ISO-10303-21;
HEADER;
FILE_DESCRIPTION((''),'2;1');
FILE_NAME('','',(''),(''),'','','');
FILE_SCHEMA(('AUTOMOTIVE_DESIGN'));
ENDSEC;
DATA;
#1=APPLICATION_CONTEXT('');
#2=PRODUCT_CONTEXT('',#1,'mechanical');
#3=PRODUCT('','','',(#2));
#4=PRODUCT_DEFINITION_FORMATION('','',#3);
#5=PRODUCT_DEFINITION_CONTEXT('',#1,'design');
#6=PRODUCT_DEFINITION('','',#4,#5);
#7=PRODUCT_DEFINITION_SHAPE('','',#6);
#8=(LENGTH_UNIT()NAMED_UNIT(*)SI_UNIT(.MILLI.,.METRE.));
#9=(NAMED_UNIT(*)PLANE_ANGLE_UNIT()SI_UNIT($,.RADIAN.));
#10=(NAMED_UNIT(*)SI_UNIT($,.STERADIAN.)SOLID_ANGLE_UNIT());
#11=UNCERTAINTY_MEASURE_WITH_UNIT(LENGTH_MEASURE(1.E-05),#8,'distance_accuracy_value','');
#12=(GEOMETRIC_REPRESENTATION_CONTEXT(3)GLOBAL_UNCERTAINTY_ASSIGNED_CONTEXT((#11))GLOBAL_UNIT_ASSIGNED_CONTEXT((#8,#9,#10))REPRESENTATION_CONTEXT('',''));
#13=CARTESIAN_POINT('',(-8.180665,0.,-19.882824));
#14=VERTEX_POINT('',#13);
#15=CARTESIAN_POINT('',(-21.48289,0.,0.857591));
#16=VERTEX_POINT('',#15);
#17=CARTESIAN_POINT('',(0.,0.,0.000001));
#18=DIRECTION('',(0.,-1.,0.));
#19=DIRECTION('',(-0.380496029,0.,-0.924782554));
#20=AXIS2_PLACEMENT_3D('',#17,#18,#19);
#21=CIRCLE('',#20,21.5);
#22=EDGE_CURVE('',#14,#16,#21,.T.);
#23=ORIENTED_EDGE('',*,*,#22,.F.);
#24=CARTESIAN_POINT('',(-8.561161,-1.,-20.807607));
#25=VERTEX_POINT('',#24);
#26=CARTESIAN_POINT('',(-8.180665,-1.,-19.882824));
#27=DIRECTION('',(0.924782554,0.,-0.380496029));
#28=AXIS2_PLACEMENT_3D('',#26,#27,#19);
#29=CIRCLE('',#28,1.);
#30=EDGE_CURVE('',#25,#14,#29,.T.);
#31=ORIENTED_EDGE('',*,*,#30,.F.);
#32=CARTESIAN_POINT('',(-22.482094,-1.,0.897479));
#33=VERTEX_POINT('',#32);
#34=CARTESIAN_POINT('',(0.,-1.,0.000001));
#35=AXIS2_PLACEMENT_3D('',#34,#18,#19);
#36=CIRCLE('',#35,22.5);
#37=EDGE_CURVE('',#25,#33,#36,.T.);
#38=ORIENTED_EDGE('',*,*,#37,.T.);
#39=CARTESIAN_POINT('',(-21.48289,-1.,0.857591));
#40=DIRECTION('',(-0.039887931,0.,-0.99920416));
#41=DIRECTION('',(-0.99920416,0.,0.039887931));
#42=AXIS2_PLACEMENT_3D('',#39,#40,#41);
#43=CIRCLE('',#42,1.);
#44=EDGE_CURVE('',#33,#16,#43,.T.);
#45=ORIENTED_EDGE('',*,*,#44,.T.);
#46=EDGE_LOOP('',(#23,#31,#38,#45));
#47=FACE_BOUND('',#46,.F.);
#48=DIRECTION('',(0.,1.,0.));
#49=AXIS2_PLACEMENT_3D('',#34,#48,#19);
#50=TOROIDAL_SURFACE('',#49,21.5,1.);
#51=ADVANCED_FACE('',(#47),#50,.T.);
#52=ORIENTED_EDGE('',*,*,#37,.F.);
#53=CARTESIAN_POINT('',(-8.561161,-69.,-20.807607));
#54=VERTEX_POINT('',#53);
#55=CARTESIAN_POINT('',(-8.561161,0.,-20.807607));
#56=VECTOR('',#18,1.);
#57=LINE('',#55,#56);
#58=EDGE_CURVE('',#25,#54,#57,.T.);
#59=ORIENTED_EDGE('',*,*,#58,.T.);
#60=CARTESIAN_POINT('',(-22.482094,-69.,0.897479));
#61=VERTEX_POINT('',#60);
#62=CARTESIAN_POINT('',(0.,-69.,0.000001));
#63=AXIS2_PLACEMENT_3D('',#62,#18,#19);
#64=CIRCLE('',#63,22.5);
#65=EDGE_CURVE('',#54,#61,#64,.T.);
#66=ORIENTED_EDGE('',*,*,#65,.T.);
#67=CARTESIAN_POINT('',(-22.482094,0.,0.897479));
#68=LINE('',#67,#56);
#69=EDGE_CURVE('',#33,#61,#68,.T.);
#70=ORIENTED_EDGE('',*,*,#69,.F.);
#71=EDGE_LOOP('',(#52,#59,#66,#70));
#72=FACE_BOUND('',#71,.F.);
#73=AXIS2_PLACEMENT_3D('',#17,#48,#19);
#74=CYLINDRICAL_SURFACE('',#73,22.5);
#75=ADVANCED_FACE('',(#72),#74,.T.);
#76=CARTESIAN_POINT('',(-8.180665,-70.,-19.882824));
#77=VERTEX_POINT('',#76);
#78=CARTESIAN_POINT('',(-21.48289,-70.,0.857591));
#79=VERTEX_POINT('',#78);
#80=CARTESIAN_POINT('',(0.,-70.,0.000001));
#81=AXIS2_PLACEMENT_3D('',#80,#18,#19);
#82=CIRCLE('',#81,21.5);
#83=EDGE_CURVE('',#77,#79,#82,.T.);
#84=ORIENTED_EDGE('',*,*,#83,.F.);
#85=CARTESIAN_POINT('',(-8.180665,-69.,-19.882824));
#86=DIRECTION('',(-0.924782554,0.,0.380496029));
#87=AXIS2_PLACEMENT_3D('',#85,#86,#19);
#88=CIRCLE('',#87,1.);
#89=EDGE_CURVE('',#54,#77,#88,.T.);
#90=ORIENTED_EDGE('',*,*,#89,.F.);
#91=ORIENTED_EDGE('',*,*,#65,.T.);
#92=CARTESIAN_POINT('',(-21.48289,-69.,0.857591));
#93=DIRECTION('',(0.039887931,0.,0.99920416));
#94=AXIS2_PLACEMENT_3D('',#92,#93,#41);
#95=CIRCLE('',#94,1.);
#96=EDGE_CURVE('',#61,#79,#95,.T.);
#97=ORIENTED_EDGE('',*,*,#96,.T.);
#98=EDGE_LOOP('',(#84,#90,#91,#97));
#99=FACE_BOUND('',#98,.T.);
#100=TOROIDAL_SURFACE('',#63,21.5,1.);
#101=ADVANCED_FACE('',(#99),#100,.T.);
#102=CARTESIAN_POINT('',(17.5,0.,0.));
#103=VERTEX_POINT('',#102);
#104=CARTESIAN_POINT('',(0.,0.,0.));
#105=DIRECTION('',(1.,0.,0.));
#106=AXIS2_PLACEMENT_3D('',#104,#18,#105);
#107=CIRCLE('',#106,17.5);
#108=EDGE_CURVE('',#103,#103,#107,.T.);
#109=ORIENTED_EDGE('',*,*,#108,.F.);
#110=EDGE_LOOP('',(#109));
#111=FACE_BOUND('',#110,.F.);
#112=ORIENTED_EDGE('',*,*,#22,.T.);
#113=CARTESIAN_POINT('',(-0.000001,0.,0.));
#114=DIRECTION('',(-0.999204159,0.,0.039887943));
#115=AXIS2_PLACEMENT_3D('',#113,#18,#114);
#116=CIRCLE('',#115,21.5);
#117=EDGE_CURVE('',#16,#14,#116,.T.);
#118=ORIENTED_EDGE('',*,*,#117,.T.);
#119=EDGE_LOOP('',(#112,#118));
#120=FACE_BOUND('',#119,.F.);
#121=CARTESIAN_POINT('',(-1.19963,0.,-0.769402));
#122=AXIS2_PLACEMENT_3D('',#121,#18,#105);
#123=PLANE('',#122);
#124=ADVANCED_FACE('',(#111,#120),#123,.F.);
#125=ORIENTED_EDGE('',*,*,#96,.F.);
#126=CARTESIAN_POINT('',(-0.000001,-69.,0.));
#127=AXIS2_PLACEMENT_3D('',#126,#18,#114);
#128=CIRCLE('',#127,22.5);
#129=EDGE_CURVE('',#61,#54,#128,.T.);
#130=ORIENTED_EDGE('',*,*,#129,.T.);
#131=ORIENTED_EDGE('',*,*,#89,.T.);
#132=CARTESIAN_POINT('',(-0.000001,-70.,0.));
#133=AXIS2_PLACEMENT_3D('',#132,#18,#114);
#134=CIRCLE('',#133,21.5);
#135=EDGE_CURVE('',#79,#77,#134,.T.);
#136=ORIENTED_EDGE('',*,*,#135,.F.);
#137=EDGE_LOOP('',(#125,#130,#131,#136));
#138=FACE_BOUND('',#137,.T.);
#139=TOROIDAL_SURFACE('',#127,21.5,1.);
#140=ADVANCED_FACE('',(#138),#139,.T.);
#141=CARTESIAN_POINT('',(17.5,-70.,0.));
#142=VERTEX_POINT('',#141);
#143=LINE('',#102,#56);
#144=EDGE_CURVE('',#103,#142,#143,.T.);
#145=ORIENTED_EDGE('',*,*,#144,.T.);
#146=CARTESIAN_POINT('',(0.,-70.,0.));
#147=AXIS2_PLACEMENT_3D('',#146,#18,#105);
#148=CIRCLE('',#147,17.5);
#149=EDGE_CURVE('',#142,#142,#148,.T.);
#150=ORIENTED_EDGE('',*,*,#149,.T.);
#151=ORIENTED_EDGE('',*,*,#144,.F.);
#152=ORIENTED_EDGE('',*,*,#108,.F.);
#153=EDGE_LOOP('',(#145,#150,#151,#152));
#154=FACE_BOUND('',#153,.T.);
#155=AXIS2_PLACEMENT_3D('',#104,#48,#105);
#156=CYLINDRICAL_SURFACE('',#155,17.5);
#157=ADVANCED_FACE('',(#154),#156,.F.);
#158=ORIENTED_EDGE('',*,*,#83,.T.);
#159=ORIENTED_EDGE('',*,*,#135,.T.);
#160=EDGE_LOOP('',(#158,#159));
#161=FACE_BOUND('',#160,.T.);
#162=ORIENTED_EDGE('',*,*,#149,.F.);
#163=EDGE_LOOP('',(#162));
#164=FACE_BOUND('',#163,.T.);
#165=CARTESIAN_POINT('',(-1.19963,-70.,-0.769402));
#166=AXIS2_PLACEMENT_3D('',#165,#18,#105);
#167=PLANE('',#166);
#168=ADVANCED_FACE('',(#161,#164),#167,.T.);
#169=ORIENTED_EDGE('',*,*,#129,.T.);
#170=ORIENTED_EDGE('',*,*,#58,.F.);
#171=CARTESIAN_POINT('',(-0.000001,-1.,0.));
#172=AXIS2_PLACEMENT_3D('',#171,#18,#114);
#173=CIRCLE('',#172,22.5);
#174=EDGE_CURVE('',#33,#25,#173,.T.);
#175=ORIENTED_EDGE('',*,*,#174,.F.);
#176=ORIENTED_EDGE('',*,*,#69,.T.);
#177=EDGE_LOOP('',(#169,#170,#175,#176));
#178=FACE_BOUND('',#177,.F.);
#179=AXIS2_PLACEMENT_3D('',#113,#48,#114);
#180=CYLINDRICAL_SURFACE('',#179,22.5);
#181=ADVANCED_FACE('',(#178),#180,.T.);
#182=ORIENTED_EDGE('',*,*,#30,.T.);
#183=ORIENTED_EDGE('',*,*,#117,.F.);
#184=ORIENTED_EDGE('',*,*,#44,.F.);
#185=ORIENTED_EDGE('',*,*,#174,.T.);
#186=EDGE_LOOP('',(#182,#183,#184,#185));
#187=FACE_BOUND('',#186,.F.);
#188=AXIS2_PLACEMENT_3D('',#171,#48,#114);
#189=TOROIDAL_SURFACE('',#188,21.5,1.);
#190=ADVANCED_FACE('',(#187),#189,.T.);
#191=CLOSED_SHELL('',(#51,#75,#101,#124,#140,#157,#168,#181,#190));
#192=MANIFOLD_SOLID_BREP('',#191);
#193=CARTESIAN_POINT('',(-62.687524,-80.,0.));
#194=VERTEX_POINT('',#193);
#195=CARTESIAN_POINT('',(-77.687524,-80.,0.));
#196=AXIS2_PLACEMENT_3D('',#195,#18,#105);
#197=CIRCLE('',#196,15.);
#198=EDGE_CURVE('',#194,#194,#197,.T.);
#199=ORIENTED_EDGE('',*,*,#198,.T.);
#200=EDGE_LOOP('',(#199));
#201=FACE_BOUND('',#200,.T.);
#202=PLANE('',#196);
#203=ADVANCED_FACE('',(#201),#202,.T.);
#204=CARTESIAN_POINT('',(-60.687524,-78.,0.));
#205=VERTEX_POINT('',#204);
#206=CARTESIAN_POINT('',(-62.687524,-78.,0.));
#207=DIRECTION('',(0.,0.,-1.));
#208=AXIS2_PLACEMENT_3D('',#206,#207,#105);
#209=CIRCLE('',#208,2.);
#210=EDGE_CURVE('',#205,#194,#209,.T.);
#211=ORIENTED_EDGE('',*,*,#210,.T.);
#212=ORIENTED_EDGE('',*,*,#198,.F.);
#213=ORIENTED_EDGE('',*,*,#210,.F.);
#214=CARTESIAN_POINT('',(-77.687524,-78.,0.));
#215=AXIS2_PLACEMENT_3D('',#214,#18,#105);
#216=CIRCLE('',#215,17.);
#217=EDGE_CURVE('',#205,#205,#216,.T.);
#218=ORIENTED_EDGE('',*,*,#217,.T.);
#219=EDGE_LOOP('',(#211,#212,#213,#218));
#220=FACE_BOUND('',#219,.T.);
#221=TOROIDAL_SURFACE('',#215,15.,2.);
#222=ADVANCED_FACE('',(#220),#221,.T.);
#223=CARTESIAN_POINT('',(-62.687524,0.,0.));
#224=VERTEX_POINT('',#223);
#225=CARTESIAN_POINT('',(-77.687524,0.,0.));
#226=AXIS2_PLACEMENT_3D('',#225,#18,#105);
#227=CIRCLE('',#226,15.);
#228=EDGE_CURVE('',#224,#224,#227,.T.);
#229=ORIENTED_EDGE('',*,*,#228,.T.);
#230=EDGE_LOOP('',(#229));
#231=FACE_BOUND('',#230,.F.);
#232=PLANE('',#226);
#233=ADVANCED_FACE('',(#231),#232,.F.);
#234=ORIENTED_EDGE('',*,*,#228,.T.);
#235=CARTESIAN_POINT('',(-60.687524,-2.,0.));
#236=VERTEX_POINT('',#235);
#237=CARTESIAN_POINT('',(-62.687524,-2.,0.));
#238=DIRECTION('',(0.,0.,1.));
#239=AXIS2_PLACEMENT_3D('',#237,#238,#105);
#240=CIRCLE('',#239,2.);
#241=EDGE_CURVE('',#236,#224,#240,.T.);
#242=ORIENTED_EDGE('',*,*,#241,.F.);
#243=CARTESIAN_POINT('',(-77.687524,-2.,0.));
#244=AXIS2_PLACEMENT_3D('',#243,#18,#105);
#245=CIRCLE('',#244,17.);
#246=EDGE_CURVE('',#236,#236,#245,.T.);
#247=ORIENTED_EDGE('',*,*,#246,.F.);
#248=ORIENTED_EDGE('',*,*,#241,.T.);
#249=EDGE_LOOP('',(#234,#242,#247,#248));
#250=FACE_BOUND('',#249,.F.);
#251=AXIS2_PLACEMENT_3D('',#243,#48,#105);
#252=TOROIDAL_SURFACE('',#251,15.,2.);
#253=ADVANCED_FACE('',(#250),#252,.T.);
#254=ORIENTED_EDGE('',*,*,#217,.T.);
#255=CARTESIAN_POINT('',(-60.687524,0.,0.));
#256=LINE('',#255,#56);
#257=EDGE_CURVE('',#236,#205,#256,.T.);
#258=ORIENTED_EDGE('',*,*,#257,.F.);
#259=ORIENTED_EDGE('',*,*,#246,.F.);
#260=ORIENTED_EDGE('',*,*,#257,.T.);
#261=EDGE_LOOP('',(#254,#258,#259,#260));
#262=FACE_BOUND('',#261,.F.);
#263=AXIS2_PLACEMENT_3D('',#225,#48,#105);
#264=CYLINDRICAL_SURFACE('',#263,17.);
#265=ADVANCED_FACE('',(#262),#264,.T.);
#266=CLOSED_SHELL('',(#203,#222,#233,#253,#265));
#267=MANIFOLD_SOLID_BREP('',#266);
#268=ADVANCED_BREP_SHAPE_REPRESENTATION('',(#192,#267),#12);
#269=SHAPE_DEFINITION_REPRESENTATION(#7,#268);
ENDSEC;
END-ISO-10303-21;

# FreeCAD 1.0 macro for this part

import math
import FreeCAD as App
import Part
import Sketcher
from FreeCAD import Vector
Q = App.Units.Quantity


def edges_at(feature, points):
    """Names of the edges that pass closest to the given points."""
    edges = feature.Shape.Edges
    near = lambda p: min(range(len(edges)), key=lambda i: edges[i].distToShape(Part.Vertex(*p))[0])
    return sorted({f"Edge{near(p) + 1}" for p in points})

doc = App.newDocument("Part")
body = doc.addObject("PartDesign::Body", "Body")

sketch1 = doc.addObject("Sketcher::SketchObject", "Sketch")
body.addObject(sketch1)
sketch1.AttachmentSupport = (doc.XZ_Plane, [""])
sketch1.MapMode = "FlatFace"
sketch1.addGeometry(Part.ArcOfCircle(Part.Circle(Vector(0, 0, 0), Vector(0, 0, 1), 23), math.radians(-112), math.radians(178)), False)
sketch1.addGeometry(Part.ArcOfCircle(Part.Circle(Vector(0, 0, 0), Vector(0, 0, 1), 22), math.radians(178), math.radians(248)), False)
sketch1.addGeometry(Part.Circle(Vector(0, 0, 0), Vector(0, 0, 1), 18), False)
sketch1.addConstraint(Sketcher.Constraint("Tangent", 0, 1, 1, 2))
sketch1.addConstraint(Sketcher.Constraint("Coincident", 1, 1, 0, 2))
sketch1.addConstraint(Sketcher.Constraint("Coincident", 0, 3, -1, 1))
sketch1.addConstraint(Sketcher.Constraint("Coincident", 2, 3, -1, 1))
sketch1.addConstraint(Sketcher.Constraint("Diameter", 2, Q("35 mm")))
sketch1.addConstraint(Sketcher.Constraint("Radius", 0, Q("22.5 mm")))
sketch1.addConstraint(Sketcher.Constraint("DistanceX", 0, 1, -1, 1, Q("8.561161 mm")))
sketch1.addConstraint(Sketcher.Constraint("DistanceY", -1, 1, 1, 1, Q("0.897479 mm")))
pad1 = doc.addObject("PartDesign::Pad", "Pad")
body.addObject(pad1)
pad1.Profile = sketch1
pad1.Length = 70
doc.recompute()

fillet = doc.addObject("PartDesign::Fillet", "Fillet")
body.addObject(fillet)
fillet.Base = (pad1, edges_at(pad1, [(18.939, 0, 12.147), (18.939, -70, 12.147)]))
fillet.Radius = 1
body2 = doc.addObject("PartDesign::Body", "Body001")

sketch2 = doc.addObject("Sketcher::SketchObject", "Sketch001")
body2.addObject(sketch2)
sketch2.AttachmentSupport = (doc.getObject("XZ_Plane001"), [""])
sketch2.MapMode = "FlatFace"
sketch2.addGeometry(Part.Circle(Vector(-78, 0, 0), Vector(0, 0, 1), 17), False)
sketch2.addConstraint(Sketcher.Constraint("PointOnObject", 0, 3, -1))
sketch2.addConstraint(Sketcher.Constraint("Diameter", 0, Q("34 mm")))
sketch2.addConstraint(Sketcher.Constraint("DistanceX", 0, 3, -1, 1, Q("77.687524 mm")))
pad2 = doc.addObject("PartDesign::Pad", "Pad001")
body2.addObject(pad2)
pad2.Profile = sketch2
pad2.Length = 80
doc.recompute()

fillet2 = doc.addObject("PartDesign::Fillet", "Fillet001")
body2.addObject(fillet2)
fillet2.Base = (pad2, edges_at(pad2, [(-94.688, -80, 0), (-94.688, 0, 0)]))
fillet2.Radius = 2

doc.recompute()
